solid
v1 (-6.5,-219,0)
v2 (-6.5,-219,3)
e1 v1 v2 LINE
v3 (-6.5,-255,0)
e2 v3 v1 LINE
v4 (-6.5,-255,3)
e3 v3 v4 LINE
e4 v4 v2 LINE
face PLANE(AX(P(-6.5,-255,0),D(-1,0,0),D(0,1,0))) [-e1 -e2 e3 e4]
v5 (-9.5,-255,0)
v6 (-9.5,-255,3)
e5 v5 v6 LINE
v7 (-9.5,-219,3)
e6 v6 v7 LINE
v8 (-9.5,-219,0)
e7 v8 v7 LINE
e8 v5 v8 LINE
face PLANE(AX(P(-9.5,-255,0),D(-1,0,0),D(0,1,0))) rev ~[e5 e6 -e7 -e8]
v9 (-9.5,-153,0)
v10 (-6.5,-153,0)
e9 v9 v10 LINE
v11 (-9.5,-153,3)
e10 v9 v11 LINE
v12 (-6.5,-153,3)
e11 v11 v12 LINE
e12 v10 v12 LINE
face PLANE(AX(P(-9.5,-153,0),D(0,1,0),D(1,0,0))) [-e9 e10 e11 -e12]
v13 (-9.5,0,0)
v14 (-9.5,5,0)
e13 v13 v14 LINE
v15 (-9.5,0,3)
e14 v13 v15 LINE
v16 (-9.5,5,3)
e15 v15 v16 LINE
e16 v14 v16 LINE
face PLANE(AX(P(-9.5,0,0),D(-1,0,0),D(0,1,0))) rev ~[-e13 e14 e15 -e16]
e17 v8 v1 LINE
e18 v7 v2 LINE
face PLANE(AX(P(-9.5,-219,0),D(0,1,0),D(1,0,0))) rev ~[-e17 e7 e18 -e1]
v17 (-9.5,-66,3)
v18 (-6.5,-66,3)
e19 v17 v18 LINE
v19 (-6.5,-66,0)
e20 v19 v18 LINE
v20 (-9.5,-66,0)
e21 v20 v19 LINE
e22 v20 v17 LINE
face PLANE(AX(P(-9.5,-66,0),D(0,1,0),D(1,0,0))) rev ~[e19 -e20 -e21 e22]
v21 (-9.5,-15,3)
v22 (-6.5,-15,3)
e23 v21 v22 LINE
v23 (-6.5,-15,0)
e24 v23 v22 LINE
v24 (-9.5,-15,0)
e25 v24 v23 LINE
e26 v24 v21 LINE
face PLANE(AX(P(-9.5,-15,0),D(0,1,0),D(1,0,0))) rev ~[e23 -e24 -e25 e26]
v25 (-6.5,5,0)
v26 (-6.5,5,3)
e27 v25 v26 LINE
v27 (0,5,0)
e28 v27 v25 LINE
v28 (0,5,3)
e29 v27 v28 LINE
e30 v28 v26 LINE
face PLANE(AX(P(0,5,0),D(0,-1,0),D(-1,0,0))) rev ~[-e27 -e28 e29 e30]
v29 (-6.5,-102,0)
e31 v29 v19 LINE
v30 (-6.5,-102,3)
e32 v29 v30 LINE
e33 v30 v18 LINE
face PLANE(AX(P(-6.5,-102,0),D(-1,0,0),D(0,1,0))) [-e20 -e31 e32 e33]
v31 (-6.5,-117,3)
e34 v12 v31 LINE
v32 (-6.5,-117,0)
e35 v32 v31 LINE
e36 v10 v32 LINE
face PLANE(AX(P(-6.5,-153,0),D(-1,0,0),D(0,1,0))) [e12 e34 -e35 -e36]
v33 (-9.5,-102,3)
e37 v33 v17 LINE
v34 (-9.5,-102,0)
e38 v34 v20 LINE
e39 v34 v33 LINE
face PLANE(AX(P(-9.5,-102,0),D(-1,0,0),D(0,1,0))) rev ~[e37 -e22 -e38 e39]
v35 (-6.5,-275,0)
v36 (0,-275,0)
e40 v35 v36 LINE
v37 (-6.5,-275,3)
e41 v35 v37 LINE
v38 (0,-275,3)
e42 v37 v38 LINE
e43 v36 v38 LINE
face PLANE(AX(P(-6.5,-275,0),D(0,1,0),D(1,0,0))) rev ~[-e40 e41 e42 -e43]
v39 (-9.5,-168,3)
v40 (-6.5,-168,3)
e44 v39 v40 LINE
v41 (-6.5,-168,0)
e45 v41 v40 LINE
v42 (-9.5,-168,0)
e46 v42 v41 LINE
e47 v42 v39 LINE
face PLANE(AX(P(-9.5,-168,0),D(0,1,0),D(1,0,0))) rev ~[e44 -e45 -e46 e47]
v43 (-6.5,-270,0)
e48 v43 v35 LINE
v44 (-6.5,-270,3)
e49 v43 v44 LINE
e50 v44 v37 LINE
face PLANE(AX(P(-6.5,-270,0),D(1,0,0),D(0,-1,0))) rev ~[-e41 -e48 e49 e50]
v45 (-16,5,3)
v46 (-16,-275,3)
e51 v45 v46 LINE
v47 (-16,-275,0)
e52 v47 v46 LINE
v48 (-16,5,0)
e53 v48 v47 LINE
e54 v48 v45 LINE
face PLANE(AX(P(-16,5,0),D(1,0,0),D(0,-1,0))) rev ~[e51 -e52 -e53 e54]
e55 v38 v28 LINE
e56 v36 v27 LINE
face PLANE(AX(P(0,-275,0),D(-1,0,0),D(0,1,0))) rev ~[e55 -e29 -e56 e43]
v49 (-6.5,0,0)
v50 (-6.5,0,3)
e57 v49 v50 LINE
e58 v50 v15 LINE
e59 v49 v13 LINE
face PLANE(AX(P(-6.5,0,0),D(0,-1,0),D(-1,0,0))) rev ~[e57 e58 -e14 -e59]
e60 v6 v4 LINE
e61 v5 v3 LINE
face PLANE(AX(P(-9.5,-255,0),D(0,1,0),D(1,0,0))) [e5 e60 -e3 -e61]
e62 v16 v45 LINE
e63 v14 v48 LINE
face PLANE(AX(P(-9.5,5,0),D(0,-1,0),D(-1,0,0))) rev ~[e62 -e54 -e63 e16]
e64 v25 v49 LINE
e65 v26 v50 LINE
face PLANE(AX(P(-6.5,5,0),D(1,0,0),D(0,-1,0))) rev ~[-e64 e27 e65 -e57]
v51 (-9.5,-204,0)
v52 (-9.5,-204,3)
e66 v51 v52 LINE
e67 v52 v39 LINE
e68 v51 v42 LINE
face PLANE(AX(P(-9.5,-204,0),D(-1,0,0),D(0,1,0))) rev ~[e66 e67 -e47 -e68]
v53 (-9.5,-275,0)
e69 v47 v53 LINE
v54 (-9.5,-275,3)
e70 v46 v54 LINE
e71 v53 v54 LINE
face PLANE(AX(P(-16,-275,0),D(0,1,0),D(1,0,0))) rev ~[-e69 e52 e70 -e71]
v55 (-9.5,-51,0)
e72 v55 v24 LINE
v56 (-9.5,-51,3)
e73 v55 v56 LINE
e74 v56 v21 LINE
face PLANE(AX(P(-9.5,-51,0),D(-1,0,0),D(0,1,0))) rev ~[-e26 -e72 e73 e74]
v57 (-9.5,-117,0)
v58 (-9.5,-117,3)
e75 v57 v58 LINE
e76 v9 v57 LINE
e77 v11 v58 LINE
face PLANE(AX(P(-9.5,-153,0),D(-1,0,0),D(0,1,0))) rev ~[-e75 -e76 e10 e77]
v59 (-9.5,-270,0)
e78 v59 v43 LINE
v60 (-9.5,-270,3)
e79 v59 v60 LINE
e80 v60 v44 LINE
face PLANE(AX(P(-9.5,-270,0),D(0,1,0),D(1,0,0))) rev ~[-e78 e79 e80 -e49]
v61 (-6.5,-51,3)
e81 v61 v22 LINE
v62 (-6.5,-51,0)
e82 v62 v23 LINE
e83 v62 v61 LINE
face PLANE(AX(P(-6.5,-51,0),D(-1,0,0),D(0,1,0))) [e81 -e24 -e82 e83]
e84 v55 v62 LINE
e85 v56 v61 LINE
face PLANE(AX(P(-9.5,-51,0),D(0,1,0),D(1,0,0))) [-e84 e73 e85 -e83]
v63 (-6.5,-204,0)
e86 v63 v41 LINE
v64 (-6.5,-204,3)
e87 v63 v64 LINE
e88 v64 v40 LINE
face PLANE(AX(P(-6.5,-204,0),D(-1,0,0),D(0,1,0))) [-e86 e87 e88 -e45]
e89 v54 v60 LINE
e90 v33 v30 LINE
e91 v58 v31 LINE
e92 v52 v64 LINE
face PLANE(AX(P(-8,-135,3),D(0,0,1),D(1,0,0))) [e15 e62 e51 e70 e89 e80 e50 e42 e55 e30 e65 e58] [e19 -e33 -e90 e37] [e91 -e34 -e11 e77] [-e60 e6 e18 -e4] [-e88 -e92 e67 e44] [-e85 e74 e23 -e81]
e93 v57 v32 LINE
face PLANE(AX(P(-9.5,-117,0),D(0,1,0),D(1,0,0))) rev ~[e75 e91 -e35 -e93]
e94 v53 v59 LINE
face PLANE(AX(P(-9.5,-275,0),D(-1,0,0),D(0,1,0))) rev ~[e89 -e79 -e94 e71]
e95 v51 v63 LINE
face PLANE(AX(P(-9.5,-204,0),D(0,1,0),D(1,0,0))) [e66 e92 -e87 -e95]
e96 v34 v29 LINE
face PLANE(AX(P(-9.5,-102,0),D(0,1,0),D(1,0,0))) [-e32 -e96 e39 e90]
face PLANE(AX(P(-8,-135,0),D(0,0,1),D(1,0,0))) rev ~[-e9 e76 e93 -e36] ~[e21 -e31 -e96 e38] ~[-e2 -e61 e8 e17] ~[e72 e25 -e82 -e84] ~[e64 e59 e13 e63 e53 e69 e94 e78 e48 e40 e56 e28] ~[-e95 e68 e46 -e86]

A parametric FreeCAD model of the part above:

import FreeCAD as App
import Part
import Sketcher
from FreeCAD import Vector


def add_polygon(sketch, points):
    """Adds a closed chain of lines whose ends are joined by coincident constraints."""
    first, n = sketch.GeometryCount, len(points)
    for a, b in zip(points, points[1:] + points[:1]):
        sketch.addGeometry(Part.LineSegment(App.Vector(*a, 0), App.Vector(*b, 0)), False)
    for i in range(n):
        sketch.addConstraint(Sketcher.Constraint("Coincident", first + i, 2, first + (i + 1) % n, 1))

doc = App.newDocument("Part")
body = doc.addObject("PartDesign::Body", "Body")

sketch1 = body.newObject("Sketcher::SketchObject", "Sketch")
sketch1.AttachmentSupport = (doc.getObject("XY_Plane"), [""])
sketch1.MapMode = "FlatFace"
add_polygon(sketch1, [(-6.5, 5), (-6.5, 0), (-9.5, 0), (-9.5, 5), (-16, 5), (-16, -275), (-9.5, -275), (-9.5, -270), (-6.5, -270), (-6.5, -275), (0, -275), (0, 5)])
add_polygon(sketch1, [(-6.5, -255), (-9.5, -255), (-9.5, -219), (-6.5, -219)])
add_polygon(sketch1, [(-6.5, -204), (-9.5, -204), (-9.5, -168), (-6.5, -168)])
add_polygon(sketch1, [(-6.5, -153), (-9.5, -153), (-9.5, -117), (-6.5, -117)])
add_polygon(sketch1, [(-6.5, -102), (-9.5, -102), (-9.5, -66), (-6.5, -66)])
add_polygon(sketch1, [(-6.5, -51), (-9.5, -51), (-9.5, -15), (-6.5, -15)])
sketch1.addConstraint(Sketcher.Constraint("Vertical", 0))
sketch1.addConstraint(Sketcher.Constraint("Horizontal", 1))
sketch1.addConstraint(Sketcher.Constraint("Vertical", 2))
sketch1.addConstraint(Sketcher.Constraint("Horizontal", 3))
sketch1.addConstraint(Sketcher.Constraint("Vertical", 4))
sketch1.addConstraint(Sketcher.Constraint("Horizontal", 5))
sketch1.addConstraint(Sketcher.Constraint("Vertical", 6))
sketch1.addConstraint(Sketcher.Constraint("Horizontal", 7))
sketch1.addConstraint(Sketcher.Constraint("Vertical", 8))
sketch1.addConstraint(Sketcher.Constraint("Horizontal", 9))
sketch1.addConstraint(Sketcher.Constraint("Vertical", 10))
sketch1.addConstraint(Sketcher.Constraint("Horizontal", 11))
sketch1.addConstraint(Sketcher.Constraint("Horizontal", 12))
sketch1.addConstraint(Sketcher.Constraint("Vertical", 13))
sketch1.addConstraint(Sketcher.Constraint("Horizontal", 14))
sketch1.addConstraint(Sketcher.Constraint("Vertical", 15))
sketch1.addConstraint(Sketcher.Constraint("Horizontal", 16))
sketch1.addConstraint(Sketcher.Constraint("Vertical", 17))
sketch1.addConstraint(Sketcher.Constraint("Horizontal", 18))
sketch1.addConstraint(Sketcher.Constraint("Vertical", 19))
sketch1.addConstraint(Sketcher.Constraint("Horizontal", 20))
sketch1.addConstraint(Sketcher.Constraint("Vertical", 21))
sketch1.addConstraint(Sketcher.Constraint("Horizontal", 22))
sketch1.addConstraint(Sketcher.Constraint("Vertical", 23))
sketch1.addConstraint(Sketcher.Constraint("Horizontal", 24))
sketch1.addConstraint(Sketcher.Constraint("Vertical", 25))
sketch1.addConstraint(Sketcher.Constraint("Horizontal", 26))
sketch1.addConstraint(Sketcher.Constraint("Vertical", 27))
sketch1.addConstraint(Sketcher.Constraint("Horizontal", 28))
sketch1.addConstraint(Sketcher.Constraint("Vertical", 29))
sketch1.addConstraint(Sketcher.Constraint("Horizontal", 30))
sketch1.addConstraint(Sketcher.Constraint("Vertical", 31))
sketch1.addConstraint(Sketcher.Constraint("PointOnObject", 0, 2, -1))
sketch1.addConstraint(Sketcher.Constraint("PointOnObject", 9, 2, -2))
sketch1.addConstraint(Sketcher.Constraint("Horizontal", 5, 2, 8, 2))
sketch1.addConstraint(Sketcher.Constraint("Horizontal", 3, 2, 10, 2))
sketch1.addConstraint(Sketcher.Constraint("Vertical", 2, 2, 5, 2))
sketch1.addConstraint(Sketcher.Constraint("Vertical", 0, 2, 7, 2))
sketch1.addConstraint(Sketcher.Constraint("Vertical", 6, 2, 12, 2))
sketch1.addConstraint(Sketcher.Constraint("Vertical", 11, 2, 14, 2))
sketch1.addConstraint(Sketcher.Constraint("Vertical", 13, 2, 16, 2))
sketch1.addConstraint(Sketcher.Constraint("Vertical", 15, 2, 18, 2))
sketch1.addConstraint(Sketcher.Constraint("Vertical", 17, 2, 20, 2))
sketch1.addConstraint(Sketcher.Constraint("Vertical", 19, 2, 22, 2))
sketch1.addConstraint(Sketcher.Constraint("Vertical", 21, 2, 24, 2))
sketch1.addConstraint(Sketcher.Constraint("Vertical", 23, 2, 26, 2))
sketch1.addConstraint(Sketcher.Constraint("Vertical", 25, 2, 28, 2))
sketch1.addConstraint(Sketcher.Constraint("Vertical", 27, 2, 30, 2))
sketch1.addConstraint(Sketcher.Constraint("Equal", 5, 9))
sketch1.addConstraint(Sketcher.Constraint("Equal", 2, 6))
sketch1.addConstraint(Sketcher.Constraint("Equal", 15, 17))
sketch1.addConstraint(Sketcher.Constraint("Equal", 19, 21))
sketch1.addConstraint(Sketcher.Constraint("Equal", 23, 25))
sketch1.addConstraint(Sketcher.Constraint("Equal", 27, 29))
sketch1.addConstraint(Sketcher.Constraint("DistanceX", 1, 2, 1, 1, 3.0))
sketch1.addConstraint(Sketcher.Constraint("DistanceY", 0, 2, 0, 1, 5.0))
sketch1.addConstraint(Sketcher.Constraint("DistanceY", 4, 2, 4, 1, 280.0))
sketch1.addConstraint(Sketcher.Constraint("DistanceY", 13, 1, 13, 2, 36.0))
sketch1.addConstraint(Sketcher.Constraint("DistanceX", 3, 2, 3, 1, 6.5))
sketch1.addConstraint(Sketcher.Constraint("DistanceY", 12, 2, -1, 1, 255.0))
sketch1.addConstraint(Sketcher.Constraint("DistanceY", 16, 2, -1, 1, 204.0))
sketch1.addConstraint(Sketcher.Constraint("DistanceY", 20, 2, -1, 1, 153.0))
sketch1.addConstraint(Sketcher.Constraint("DistanceY", 24, 2, -1, 1, 102.0))
sketch1.addConstraint(Sketcher.Constraint("DistanceY", 28, 2, -1, 1, 51.0))
pad1 = body.newObject("PartDesign::Pad", "Pad")
pad1.Profile = sketch1
pad1.Length = 3

doc.recompute()
